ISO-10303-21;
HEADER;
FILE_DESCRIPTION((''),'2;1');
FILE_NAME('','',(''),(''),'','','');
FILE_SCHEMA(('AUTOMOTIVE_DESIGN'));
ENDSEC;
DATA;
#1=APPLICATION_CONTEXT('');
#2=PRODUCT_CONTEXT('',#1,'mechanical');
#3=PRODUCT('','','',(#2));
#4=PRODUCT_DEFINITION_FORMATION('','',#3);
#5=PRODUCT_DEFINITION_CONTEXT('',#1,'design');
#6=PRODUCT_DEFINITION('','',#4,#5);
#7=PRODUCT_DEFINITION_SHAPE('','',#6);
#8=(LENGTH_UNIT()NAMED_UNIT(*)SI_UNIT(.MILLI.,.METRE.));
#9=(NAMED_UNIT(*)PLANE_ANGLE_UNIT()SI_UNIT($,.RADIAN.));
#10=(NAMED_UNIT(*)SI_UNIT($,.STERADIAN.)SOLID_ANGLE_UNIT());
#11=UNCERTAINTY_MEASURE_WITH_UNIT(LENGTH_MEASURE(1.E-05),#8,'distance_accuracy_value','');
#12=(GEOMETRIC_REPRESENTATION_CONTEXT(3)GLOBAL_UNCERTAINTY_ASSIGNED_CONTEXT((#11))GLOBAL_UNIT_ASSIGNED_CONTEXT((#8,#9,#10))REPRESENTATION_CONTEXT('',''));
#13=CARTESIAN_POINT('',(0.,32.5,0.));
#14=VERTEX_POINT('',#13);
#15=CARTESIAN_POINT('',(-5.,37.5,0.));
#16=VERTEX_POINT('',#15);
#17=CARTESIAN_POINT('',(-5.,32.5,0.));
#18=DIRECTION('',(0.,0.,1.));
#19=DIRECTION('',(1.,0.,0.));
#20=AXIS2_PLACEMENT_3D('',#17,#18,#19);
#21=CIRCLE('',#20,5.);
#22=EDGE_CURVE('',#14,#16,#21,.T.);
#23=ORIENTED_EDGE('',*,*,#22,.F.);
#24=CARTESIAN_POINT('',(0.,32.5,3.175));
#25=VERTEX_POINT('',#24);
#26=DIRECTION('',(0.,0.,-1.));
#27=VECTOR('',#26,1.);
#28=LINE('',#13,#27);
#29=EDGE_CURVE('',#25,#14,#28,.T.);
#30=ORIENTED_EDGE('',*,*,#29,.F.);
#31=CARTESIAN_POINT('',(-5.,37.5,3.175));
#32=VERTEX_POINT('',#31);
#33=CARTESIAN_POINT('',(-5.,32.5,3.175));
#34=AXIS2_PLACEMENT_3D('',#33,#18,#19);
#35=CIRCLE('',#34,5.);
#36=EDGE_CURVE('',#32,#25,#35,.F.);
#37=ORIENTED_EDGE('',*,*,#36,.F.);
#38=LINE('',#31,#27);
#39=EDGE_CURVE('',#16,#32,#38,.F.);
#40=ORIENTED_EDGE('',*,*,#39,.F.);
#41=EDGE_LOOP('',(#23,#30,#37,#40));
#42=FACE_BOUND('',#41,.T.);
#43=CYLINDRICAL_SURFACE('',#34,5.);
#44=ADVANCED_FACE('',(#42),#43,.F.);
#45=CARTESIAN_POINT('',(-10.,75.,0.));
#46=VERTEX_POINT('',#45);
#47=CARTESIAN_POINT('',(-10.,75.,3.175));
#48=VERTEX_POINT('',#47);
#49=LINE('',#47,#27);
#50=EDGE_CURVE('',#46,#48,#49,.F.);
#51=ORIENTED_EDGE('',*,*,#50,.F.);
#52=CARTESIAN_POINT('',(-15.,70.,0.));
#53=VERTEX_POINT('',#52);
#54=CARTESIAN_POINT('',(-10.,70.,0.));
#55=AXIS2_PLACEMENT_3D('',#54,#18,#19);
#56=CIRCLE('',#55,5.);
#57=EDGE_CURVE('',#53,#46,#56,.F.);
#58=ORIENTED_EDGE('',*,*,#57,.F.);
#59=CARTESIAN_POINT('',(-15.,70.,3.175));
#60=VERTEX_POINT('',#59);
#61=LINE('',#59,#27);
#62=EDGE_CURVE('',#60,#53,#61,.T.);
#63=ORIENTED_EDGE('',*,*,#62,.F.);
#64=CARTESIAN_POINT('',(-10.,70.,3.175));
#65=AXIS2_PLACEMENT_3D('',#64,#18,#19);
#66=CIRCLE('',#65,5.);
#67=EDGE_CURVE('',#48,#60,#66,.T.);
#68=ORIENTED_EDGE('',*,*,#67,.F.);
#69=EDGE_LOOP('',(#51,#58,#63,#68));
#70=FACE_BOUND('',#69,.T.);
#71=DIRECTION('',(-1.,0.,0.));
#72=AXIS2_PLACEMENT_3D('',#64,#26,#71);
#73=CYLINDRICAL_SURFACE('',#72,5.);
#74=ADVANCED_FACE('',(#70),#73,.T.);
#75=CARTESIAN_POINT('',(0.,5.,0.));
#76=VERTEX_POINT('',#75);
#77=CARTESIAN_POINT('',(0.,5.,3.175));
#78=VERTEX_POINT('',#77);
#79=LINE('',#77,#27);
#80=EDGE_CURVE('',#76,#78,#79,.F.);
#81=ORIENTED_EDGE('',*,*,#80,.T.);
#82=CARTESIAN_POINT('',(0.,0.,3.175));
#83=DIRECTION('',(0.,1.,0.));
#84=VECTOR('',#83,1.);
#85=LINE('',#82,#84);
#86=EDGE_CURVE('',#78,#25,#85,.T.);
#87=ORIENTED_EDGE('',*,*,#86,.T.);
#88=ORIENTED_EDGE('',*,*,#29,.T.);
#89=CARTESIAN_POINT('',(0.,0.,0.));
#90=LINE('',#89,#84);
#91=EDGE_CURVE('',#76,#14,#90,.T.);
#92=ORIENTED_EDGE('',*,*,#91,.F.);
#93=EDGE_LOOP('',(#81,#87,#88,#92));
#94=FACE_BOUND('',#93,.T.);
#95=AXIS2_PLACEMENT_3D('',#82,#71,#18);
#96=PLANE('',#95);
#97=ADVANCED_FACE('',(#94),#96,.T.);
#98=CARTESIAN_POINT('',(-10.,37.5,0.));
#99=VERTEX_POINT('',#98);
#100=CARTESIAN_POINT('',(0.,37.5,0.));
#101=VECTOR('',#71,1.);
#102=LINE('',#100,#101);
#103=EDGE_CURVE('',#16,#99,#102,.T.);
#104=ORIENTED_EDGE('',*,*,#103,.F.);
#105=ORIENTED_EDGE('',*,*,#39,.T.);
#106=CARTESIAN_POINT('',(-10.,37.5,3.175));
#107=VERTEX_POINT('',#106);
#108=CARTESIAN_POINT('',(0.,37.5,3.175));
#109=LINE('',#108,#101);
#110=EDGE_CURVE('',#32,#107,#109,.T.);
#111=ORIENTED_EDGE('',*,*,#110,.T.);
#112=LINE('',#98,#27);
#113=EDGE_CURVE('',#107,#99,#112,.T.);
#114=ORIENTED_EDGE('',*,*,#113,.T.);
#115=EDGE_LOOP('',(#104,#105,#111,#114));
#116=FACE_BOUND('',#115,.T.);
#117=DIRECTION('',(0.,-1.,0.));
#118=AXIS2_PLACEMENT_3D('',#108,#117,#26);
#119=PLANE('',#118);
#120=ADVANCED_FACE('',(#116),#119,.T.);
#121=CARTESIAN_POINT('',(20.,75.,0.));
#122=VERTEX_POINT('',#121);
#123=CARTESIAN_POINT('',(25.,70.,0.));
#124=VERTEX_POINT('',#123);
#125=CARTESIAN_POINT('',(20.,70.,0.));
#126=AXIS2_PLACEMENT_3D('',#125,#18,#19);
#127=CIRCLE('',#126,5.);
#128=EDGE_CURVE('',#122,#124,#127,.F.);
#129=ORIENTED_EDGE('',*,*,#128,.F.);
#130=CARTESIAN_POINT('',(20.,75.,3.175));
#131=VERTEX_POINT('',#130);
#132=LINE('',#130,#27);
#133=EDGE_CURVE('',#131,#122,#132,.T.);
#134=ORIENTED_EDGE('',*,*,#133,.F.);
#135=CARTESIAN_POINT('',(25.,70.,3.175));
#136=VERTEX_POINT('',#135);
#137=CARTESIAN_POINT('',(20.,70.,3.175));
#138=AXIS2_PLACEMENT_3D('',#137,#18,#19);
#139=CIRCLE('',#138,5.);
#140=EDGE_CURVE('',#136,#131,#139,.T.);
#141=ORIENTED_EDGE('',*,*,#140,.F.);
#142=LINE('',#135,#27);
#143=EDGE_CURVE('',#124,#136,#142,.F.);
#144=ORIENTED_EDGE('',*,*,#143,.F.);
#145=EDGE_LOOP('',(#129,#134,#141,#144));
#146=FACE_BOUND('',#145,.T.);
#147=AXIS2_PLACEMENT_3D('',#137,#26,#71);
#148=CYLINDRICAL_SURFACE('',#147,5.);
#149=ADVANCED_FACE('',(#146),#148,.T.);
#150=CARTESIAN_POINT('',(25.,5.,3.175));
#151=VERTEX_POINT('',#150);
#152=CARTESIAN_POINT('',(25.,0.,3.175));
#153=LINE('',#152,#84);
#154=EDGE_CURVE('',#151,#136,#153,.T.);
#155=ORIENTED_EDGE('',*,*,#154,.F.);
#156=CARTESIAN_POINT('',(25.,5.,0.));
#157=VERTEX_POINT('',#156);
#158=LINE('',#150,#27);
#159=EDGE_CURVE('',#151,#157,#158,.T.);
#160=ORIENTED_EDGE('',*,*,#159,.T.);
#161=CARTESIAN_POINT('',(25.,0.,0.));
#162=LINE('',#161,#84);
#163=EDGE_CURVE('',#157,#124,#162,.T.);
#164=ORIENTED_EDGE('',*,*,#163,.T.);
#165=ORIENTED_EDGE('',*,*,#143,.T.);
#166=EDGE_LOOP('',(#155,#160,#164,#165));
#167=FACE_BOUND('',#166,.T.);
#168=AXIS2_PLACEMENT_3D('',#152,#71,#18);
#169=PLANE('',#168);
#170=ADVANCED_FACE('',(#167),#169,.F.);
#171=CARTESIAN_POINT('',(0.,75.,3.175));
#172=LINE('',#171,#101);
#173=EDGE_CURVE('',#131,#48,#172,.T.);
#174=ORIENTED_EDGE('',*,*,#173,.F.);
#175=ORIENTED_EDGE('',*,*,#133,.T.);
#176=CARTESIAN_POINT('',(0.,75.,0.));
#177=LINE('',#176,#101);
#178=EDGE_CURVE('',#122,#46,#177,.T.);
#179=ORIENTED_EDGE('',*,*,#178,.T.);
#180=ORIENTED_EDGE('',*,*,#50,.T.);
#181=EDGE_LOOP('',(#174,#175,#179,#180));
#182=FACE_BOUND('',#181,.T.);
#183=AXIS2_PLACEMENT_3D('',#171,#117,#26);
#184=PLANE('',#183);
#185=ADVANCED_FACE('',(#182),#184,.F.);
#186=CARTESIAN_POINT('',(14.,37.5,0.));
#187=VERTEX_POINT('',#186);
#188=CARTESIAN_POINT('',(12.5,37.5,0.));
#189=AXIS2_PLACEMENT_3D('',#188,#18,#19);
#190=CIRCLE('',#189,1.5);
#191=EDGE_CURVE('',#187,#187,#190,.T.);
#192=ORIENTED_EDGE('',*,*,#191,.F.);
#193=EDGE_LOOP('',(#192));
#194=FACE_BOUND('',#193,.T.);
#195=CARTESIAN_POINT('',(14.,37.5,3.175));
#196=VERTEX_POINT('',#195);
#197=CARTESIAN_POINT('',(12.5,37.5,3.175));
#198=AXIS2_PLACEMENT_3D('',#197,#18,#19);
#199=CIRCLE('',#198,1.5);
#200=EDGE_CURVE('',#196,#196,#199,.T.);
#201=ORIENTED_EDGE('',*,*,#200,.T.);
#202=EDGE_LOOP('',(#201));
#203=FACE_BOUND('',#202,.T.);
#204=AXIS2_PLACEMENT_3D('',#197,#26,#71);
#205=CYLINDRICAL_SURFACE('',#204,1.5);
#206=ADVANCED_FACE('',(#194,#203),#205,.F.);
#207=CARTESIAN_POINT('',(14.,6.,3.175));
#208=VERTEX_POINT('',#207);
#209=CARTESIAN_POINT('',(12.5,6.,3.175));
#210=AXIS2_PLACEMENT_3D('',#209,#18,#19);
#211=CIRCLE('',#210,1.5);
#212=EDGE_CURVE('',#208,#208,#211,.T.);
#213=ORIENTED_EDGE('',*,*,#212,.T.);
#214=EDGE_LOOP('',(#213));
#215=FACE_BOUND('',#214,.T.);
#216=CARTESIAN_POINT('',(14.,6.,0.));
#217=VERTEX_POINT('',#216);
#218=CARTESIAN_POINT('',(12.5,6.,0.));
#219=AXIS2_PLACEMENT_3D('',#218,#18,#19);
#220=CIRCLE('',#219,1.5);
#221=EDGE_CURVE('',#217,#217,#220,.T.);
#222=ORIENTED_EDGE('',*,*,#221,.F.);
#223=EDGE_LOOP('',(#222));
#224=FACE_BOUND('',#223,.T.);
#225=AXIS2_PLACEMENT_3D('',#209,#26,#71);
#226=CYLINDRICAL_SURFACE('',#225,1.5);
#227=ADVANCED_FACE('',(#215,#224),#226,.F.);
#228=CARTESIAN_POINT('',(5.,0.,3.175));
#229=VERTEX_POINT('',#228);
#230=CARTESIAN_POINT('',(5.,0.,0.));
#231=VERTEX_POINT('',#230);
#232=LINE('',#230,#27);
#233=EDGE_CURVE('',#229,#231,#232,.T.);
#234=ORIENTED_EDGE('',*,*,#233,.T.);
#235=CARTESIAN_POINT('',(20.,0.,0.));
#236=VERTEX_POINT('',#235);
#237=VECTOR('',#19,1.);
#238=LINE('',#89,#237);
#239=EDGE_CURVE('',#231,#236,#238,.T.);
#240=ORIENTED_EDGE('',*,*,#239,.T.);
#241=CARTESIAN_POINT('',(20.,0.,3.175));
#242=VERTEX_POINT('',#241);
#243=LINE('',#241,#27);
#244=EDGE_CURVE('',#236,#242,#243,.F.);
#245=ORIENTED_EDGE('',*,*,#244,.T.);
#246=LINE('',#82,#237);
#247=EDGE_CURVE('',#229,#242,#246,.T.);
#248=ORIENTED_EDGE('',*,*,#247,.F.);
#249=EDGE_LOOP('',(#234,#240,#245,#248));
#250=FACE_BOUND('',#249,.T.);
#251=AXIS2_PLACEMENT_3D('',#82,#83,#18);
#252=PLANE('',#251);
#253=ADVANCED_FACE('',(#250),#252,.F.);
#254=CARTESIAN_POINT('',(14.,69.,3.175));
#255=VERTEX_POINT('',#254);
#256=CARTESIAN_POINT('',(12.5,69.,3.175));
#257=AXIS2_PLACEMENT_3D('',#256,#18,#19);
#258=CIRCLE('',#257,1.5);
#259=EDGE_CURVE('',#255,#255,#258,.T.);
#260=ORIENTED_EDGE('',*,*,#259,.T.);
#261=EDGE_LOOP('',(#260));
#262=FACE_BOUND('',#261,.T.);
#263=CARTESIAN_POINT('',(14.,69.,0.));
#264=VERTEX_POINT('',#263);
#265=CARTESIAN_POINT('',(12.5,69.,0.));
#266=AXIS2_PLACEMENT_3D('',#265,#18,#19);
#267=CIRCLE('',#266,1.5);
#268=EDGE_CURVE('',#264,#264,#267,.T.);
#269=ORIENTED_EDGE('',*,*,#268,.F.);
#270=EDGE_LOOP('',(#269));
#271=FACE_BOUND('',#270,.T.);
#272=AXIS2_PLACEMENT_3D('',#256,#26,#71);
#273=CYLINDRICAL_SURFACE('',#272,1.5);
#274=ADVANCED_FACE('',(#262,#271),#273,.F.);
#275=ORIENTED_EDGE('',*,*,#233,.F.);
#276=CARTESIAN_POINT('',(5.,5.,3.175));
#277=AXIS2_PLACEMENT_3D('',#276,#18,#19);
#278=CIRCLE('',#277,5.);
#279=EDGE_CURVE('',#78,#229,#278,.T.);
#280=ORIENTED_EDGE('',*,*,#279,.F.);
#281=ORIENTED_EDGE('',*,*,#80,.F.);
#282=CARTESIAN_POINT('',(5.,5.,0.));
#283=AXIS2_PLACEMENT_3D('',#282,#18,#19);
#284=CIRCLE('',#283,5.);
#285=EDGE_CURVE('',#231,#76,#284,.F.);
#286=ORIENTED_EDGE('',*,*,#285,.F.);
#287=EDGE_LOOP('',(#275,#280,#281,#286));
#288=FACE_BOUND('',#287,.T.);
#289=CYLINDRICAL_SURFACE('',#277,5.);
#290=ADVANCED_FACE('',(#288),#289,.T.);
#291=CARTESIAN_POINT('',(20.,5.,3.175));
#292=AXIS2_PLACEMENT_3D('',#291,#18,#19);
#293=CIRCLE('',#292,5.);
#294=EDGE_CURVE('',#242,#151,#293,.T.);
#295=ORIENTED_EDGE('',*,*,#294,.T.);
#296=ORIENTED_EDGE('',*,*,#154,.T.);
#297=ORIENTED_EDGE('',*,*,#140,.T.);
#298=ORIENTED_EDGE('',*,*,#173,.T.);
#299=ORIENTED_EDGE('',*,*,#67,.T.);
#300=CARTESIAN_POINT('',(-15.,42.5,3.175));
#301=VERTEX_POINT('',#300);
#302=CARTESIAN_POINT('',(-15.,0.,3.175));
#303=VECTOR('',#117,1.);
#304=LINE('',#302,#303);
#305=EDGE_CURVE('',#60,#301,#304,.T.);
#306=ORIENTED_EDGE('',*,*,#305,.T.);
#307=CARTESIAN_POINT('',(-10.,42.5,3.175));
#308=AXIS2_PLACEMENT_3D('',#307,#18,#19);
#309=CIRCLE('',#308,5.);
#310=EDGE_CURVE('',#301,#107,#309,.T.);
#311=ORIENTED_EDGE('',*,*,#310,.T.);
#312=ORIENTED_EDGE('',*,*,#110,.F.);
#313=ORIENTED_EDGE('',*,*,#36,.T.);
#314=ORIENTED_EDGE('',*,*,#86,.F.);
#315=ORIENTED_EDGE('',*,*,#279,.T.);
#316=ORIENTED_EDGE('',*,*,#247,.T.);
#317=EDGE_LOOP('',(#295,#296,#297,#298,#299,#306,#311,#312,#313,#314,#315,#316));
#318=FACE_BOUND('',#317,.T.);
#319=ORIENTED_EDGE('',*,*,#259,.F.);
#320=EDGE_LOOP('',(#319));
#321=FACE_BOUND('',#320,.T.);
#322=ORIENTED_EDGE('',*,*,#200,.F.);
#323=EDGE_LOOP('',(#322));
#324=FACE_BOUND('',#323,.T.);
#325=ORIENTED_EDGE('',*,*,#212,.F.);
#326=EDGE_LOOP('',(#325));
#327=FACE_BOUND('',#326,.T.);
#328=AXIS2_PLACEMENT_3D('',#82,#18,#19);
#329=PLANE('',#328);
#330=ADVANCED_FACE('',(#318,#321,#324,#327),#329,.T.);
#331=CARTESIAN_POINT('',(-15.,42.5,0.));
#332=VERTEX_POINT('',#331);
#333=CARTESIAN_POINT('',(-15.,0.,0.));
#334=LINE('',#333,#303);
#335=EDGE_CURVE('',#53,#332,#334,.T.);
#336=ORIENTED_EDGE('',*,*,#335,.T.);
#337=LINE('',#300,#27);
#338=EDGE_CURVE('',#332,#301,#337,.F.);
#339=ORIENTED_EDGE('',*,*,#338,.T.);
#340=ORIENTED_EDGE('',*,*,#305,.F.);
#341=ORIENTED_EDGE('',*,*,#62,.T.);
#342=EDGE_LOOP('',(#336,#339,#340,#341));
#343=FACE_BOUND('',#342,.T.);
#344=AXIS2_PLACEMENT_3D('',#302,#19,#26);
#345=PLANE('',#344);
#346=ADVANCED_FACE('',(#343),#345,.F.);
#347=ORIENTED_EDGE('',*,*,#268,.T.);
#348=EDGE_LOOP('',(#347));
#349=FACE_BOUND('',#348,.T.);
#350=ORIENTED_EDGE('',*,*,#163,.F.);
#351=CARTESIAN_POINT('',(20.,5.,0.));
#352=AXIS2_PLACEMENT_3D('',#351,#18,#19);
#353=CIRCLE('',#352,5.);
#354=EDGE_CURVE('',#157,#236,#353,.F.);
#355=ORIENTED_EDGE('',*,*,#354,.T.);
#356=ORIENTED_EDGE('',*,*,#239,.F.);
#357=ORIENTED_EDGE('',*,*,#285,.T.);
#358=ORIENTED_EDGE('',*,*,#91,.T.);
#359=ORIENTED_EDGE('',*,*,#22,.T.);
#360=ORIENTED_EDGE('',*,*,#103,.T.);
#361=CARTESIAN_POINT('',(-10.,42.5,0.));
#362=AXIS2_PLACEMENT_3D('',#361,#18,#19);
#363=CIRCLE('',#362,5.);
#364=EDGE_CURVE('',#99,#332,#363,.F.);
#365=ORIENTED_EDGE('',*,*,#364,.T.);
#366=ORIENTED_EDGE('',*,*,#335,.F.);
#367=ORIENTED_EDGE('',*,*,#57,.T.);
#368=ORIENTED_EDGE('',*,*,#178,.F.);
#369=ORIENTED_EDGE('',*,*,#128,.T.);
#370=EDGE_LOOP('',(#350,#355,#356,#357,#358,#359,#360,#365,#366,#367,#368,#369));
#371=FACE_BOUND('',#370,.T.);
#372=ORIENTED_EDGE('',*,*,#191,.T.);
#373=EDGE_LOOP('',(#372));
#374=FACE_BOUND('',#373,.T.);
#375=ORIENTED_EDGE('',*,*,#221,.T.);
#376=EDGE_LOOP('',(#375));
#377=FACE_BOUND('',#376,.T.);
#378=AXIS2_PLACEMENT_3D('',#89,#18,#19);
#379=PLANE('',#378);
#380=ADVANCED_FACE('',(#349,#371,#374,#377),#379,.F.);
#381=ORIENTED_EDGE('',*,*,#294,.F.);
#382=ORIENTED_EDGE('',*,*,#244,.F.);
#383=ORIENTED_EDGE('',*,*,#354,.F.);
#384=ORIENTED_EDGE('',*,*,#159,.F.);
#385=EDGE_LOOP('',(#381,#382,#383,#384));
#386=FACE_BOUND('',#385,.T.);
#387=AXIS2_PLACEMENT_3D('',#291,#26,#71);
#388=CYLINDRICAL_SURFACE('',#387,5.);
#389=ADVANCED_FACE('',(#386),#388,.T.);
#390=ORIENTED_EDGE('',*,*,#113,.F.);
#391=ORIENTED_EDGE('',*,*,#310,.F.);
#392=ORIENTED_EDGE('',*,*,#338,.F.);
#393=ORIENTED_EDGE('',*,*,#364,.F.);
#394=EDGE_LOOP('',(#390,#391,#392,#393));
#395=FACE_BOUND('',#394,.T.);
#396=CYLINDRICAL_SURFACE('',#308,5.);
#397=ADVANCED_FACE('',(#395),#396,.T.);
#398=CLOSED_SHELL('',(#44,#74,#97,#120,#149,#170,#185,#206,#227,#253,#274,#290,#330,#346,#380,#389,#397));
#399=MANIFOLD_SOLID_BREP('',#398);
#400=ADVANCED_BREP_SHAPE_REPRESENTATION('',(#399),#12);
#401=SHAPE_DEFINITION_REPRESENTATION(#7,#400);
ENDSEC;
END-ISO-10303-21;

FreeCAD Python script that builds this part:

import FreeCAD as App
import Part
import Sketcher
from FreeCAD import Vector


def edges_at(feature, points):
    """Names of the edges that pass closest to the given points."""
    edges = feature.Shape.Edges
    near = lambda p: min(range(len(edges)), key=lambda i: edges[i].distToShape(Part.Vertex(*p))[0])
    return sorted({f"Edge{near(p) + 1}" for p in points})


def add_polygon(sketch, points):
    """Adds a closed chain of lines whose ends are joined by coincident constraints."""
    first, n = sketch.GeometryCount, len(points)
    for a, b in zip(points, points[1:] + points[:1]):
        sketch.addGeometry(Part.LineSegment(App.Vector(*a, 0), App.Vector(*b, 0)), False)
    for i in range(n):
        sketch.addConstraint(Sketcher.Constraint("Coincident", first + i, 2, first + (i + 1) % n, 1))

doc = App.newDocument("Part")
body = doc.addObject("PartDesign::Body", "Body")

# Sketch on XY plane
sketch1 = body.newObject("Sketcher::SketchObject", "Sketch")
sketch1.AttachmentSupport = (doc.getObject("XY_Plane"), [""])
sketch1.MapMode = "FlatFace"
add_polygon(sketch1, [(0, 37.5), (0, 0), (25, 0), (25, 75), (-15, 75), (-15, 37.5)])  # lines 0-5
sketch1.addGeometry(Part.Circle(Vector(12.5, 6, 0), Vector(0, 0, 1), 1.5), False)  # 6
sketch1.addGeometry(Part.Circle(Vector(12.5, 37.5, 0), Vector(0, 0, 1), 1.5), False)  # 7
sketch1.addGeometry(Part.Circle(Vector(12.5, 69, 0), Vector(0, 0, 1), 1.5), False)  # 8
sketch1.addConstraint([
    Sketcher.Constraint("Vertical", 0),
    Sketcher.Constraint("Horizontal", 1),
    Sketcher.Constraint("Vertical", 2),
    Sketcher.Constraint("Horizontal", 3),
    Sketcher.Constraint("Vertical", 4),
    Sketcher.Constraint("Horizontal", 5),
    Sketcher.Constraint("Coincident", 0, 2, -1, 1),
    Sketcher.Constraint("Equal", 6, 7),
    Sketcher.Constraint("Equal", 7, 8),
    Sketcher.Constraint("Horizontal", 7, 3, 4, 2),
    Sketcher.Constraint("Vertical", 6, 3, 7, 3),
    Sketcher.Constraint("Vertical", 7, 3, 8, 3),
    Sketcher.Constraint("Equal", 0, 4),
    Sketcher.Constraint("Diameter", 6, 3.0),
    Sketcher.Constraint("DistanceX", 1, 1, 1, 2, 25.0),
    Sketcher.Constraint("DistanceX", 3, 2, 3, 1, 40.0),
    Sketcher.Constraint("DistanceY", 2, 1, 2, 2, 75.0),
    Sketcher.Constraint("DistanceY", -1, 1, 6, 3, 6.0),
    Sketcher.Constraint("DistanceY", -1, 1, 8, 3, 69.0),
    Sketcher.Constraint("DistanceX", -1, 1, 6, 3, 12.5),
])
pad1 = body.newObject("PartDesign::Pad", "Pad")
pad1.Profile = sketch1
pad1.Length = 3.175
doc.recompute()

fillet = body.newObject("PartDesign::Fillet", "Fillet")
fillet.Base = (pad1, edges_at(pad1, [
    (25, 75, 1.587),
    (25, 0, 1.587),
    (0, 0, 1.587),
    (0, 37.5, 1.587),
    (-15, 37.5, 1.587),
    (-15, 75, 1.587),
]))
fillet.Radius = 5

doc.recompute()
